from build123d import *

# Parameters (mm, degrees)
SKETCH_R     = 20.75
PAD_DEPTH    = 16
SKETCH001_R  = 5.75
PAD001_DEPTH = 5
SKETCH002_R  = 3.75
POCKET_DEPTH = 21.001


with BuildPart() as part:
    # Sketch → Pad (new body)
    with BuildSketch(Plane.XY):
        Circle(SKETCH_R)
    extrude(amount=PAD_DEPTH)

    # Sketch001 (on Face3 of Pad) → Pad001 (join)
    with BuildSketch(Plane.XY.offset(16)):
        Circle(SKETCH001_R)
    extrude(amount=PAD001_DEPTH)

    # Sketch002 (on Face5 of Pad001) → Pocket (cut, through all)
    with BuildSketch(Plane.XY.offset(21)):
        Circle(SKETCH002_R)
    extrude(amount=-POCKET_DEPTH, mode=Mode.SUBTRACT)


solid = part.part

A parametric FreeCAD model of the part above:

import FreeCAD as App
import Part
import Sketcher
Q = App.Units.Quantity

doc = App.newDocument("Part")
body = doc.addObject("PartDesign::Body", "Body")

# Sketch on XY plane
sketch1 = doc.addObject("Sketcher::SketchObject", "Sketch")
body.addObject(sketch1)
sketch1.AttachmentSupport = (doc.XY_Plane, [""])
sketch1.MapMode = "FlatFace"
sketch1.addGeometry(Part.Circle(App.Vector(0, 0, 0), App.Vector(0, 0, 1), 21), False)
sketch1.addConstraint(Sketcher.Constraint("Coincident", 0, 3, -1, 1))
sketch1.addConstraint(Sketcher.Constraint("Diameter", 0, Q("41.5 mm")))
pad1 = doc.addObject("PartDesign::Pad", "Pad")
body.addObject(pad1)
pad1.Profile = sketch1
pad1.Length = 16

# Sketch on XY plane
sketch2 = doc.addObject("Sketcher::SketchObject", "Sketch001")
body.addObject(sketch2)
sketch2.AttachmentSupport = (doc.XY_Plane, [""])
sketch2.MapMode = "FlatFace"
sketch2.AttachmentOffset = App.Placement(App.Vector(0, 0, 16), App.Rotation())
sketch2.addGeometry(Part.Circle(App.Vector(0, 0, 0), App.Vector(0, 0, 1), 6), False)
sketch2.addConstraint(Sketcher.Constraint("Coincident", 0, 3, -1, 1))
sketch2.addConstraint(Sketcher.Constraint("Diameter", 0, Q("11.5 mm")))
pad2 = doc.addObject("PartDesign::Pad", "Pad001")
body.addObject(pad2)
pad2.Profile = sketch2
pad2.Length = 5

# Sketch on XY plane
sketch3 = doc.addObject("Sketcher::SketchObject", "Sketch002")
body.addObject(sketch3)
sketch3.AttachmentSupport = (doc.XY_Plane, [""])
sketch3.MapMode = "FlatFace"
sketch3.AttachmentOffset = App.Placement(App.Vector(0, 0, 21), App.Rotation())
sketch3.addGeometry(Part.Circle(App.Vector(0, 0, 0), App.Vector(0, 0, 1), 3.8), False)
sketch3.addConstraint(Sketcher.Constraint("Coincident", 0, 3, -1, 1))
sketch3.addConstraint(Sketcher.Constraint("Diameter", 0, Q("7.5 mm")))
pocket1 = doc.addObject("PartDesign::Pocket", "Pocket")
body.addObject(pocket1)
pocket1.Profile = sketch3
pocket1.Type = "ThroughAll"

doc.recompute()
